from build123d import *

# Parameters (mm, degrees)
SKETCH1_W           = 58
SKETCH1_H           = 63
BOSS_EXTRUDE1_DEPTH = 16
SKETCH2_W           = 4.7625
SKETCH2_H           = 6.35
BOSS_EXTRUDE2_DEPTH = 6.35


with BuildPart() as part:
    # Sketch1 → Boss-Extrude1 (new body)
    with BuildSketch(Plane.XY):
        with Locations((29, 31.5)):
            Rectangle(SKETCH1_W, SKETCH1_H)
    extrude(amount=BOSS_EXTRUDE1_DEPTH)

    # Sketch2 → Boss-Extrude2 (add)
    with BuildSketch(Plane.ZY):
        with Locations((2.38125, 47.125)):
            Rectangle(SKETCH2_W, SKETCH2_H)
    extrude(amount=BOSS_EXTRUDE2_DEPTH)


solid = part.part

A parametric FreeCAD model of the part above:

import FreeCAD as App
import Part
import Sketcher
from FreeCAD import Vector


def add_polygon(sketch, points):
    """Adds a closed chain of lines whose ends are joined by coincident constraints."""
    first, n = sketch.GeometryCount, len(points)
    for a, b in zip(points, points[1:] + points[:1]):
        sketch.addGeometry(Part.LineSegment(App.Vector(*a, 0), App.Vector(*b, 0)), False)
    for i in range(n):
        sketch.addConstraint(Sketcher.Constraint("Coincident", first + i, 2, first + (i + 1) % n, 1))

doc = App.newDocument("Part")
body = doc.addObject("PartDesign::Body", "Body")

# Sketch on XY plane
sketch1 = body.newObject("Sketcher::SketchObject", "Sketch")
sketch1.AttachmentSupport = (doc.getObject("XY_Plane"), [""])
sketch1.MapMode = "FlatFace"
add_polygon(sketch1, [(0, 63), (0, 0), (58, 0), (58, 63)])  # lines 0-3
sketch1.addConstraint([
    Sketcher.Constraint("Vertical", 0),
    Sketcher.Constraint("Horizontal", 1),
    Sketcher.Constraint("Vertical", 2),
    Sketcher.Constraint("Horizontal", 3),
    Sketcher.Constraint("Coincident", 0, 2, -1, 1),
    Sketcher.Constraint("DistanceX", 1, 1, 1, 2, 58.0),
    Sketcher.Constraint("DistanceY", 0, 2, 0, 1, 63.0),
])
pad1 = body.newObject("PartDesign::Pad", "Pad")
pad1.Profile = sketch1
pad1.Length = 16

# Sketch on YZ plane
sketch2 = body.newObject("Sketcher::SketchObject", "Sketch001")
sketch2.AttachmentSupport = (doc.getObject("YZ_Plane"), [""])
sketch2.MapMode = "FlatFace"
add_polygon(sketch2, [(50.3, 0), (44, 0), (44, 4.8), (50.3, 4.8)])  # lines 0-3
sketch2.addConstraint([
    Sketcher.Constraint("Horizontal", 0),
    Sketcher.Constraint("Vertical", 1),
    Sketcher.Constraint("Horizontal", 2),
    Sketcher.Constraint("Vertical", 3),
    Sketcher.Constraint("PointOnObject", 0, 2, -1),
    Sketcher.Constraint("DistanceX", 0, 2, 0, 1, 6.35),
    Sketcher.Constraint("DistanceX", -1, 1, 2, 2, 50.3),
    Sketcher.Constraint("DistanceY", 1, 1, 1, 2, 4.7625),
])
pad2 = body.newObject("PartDesign::Pad", "Pad001")
pad2.Profile = sketch2
pad2.Length = 6.35
pad2.Reversed = True

doc.recompute()
